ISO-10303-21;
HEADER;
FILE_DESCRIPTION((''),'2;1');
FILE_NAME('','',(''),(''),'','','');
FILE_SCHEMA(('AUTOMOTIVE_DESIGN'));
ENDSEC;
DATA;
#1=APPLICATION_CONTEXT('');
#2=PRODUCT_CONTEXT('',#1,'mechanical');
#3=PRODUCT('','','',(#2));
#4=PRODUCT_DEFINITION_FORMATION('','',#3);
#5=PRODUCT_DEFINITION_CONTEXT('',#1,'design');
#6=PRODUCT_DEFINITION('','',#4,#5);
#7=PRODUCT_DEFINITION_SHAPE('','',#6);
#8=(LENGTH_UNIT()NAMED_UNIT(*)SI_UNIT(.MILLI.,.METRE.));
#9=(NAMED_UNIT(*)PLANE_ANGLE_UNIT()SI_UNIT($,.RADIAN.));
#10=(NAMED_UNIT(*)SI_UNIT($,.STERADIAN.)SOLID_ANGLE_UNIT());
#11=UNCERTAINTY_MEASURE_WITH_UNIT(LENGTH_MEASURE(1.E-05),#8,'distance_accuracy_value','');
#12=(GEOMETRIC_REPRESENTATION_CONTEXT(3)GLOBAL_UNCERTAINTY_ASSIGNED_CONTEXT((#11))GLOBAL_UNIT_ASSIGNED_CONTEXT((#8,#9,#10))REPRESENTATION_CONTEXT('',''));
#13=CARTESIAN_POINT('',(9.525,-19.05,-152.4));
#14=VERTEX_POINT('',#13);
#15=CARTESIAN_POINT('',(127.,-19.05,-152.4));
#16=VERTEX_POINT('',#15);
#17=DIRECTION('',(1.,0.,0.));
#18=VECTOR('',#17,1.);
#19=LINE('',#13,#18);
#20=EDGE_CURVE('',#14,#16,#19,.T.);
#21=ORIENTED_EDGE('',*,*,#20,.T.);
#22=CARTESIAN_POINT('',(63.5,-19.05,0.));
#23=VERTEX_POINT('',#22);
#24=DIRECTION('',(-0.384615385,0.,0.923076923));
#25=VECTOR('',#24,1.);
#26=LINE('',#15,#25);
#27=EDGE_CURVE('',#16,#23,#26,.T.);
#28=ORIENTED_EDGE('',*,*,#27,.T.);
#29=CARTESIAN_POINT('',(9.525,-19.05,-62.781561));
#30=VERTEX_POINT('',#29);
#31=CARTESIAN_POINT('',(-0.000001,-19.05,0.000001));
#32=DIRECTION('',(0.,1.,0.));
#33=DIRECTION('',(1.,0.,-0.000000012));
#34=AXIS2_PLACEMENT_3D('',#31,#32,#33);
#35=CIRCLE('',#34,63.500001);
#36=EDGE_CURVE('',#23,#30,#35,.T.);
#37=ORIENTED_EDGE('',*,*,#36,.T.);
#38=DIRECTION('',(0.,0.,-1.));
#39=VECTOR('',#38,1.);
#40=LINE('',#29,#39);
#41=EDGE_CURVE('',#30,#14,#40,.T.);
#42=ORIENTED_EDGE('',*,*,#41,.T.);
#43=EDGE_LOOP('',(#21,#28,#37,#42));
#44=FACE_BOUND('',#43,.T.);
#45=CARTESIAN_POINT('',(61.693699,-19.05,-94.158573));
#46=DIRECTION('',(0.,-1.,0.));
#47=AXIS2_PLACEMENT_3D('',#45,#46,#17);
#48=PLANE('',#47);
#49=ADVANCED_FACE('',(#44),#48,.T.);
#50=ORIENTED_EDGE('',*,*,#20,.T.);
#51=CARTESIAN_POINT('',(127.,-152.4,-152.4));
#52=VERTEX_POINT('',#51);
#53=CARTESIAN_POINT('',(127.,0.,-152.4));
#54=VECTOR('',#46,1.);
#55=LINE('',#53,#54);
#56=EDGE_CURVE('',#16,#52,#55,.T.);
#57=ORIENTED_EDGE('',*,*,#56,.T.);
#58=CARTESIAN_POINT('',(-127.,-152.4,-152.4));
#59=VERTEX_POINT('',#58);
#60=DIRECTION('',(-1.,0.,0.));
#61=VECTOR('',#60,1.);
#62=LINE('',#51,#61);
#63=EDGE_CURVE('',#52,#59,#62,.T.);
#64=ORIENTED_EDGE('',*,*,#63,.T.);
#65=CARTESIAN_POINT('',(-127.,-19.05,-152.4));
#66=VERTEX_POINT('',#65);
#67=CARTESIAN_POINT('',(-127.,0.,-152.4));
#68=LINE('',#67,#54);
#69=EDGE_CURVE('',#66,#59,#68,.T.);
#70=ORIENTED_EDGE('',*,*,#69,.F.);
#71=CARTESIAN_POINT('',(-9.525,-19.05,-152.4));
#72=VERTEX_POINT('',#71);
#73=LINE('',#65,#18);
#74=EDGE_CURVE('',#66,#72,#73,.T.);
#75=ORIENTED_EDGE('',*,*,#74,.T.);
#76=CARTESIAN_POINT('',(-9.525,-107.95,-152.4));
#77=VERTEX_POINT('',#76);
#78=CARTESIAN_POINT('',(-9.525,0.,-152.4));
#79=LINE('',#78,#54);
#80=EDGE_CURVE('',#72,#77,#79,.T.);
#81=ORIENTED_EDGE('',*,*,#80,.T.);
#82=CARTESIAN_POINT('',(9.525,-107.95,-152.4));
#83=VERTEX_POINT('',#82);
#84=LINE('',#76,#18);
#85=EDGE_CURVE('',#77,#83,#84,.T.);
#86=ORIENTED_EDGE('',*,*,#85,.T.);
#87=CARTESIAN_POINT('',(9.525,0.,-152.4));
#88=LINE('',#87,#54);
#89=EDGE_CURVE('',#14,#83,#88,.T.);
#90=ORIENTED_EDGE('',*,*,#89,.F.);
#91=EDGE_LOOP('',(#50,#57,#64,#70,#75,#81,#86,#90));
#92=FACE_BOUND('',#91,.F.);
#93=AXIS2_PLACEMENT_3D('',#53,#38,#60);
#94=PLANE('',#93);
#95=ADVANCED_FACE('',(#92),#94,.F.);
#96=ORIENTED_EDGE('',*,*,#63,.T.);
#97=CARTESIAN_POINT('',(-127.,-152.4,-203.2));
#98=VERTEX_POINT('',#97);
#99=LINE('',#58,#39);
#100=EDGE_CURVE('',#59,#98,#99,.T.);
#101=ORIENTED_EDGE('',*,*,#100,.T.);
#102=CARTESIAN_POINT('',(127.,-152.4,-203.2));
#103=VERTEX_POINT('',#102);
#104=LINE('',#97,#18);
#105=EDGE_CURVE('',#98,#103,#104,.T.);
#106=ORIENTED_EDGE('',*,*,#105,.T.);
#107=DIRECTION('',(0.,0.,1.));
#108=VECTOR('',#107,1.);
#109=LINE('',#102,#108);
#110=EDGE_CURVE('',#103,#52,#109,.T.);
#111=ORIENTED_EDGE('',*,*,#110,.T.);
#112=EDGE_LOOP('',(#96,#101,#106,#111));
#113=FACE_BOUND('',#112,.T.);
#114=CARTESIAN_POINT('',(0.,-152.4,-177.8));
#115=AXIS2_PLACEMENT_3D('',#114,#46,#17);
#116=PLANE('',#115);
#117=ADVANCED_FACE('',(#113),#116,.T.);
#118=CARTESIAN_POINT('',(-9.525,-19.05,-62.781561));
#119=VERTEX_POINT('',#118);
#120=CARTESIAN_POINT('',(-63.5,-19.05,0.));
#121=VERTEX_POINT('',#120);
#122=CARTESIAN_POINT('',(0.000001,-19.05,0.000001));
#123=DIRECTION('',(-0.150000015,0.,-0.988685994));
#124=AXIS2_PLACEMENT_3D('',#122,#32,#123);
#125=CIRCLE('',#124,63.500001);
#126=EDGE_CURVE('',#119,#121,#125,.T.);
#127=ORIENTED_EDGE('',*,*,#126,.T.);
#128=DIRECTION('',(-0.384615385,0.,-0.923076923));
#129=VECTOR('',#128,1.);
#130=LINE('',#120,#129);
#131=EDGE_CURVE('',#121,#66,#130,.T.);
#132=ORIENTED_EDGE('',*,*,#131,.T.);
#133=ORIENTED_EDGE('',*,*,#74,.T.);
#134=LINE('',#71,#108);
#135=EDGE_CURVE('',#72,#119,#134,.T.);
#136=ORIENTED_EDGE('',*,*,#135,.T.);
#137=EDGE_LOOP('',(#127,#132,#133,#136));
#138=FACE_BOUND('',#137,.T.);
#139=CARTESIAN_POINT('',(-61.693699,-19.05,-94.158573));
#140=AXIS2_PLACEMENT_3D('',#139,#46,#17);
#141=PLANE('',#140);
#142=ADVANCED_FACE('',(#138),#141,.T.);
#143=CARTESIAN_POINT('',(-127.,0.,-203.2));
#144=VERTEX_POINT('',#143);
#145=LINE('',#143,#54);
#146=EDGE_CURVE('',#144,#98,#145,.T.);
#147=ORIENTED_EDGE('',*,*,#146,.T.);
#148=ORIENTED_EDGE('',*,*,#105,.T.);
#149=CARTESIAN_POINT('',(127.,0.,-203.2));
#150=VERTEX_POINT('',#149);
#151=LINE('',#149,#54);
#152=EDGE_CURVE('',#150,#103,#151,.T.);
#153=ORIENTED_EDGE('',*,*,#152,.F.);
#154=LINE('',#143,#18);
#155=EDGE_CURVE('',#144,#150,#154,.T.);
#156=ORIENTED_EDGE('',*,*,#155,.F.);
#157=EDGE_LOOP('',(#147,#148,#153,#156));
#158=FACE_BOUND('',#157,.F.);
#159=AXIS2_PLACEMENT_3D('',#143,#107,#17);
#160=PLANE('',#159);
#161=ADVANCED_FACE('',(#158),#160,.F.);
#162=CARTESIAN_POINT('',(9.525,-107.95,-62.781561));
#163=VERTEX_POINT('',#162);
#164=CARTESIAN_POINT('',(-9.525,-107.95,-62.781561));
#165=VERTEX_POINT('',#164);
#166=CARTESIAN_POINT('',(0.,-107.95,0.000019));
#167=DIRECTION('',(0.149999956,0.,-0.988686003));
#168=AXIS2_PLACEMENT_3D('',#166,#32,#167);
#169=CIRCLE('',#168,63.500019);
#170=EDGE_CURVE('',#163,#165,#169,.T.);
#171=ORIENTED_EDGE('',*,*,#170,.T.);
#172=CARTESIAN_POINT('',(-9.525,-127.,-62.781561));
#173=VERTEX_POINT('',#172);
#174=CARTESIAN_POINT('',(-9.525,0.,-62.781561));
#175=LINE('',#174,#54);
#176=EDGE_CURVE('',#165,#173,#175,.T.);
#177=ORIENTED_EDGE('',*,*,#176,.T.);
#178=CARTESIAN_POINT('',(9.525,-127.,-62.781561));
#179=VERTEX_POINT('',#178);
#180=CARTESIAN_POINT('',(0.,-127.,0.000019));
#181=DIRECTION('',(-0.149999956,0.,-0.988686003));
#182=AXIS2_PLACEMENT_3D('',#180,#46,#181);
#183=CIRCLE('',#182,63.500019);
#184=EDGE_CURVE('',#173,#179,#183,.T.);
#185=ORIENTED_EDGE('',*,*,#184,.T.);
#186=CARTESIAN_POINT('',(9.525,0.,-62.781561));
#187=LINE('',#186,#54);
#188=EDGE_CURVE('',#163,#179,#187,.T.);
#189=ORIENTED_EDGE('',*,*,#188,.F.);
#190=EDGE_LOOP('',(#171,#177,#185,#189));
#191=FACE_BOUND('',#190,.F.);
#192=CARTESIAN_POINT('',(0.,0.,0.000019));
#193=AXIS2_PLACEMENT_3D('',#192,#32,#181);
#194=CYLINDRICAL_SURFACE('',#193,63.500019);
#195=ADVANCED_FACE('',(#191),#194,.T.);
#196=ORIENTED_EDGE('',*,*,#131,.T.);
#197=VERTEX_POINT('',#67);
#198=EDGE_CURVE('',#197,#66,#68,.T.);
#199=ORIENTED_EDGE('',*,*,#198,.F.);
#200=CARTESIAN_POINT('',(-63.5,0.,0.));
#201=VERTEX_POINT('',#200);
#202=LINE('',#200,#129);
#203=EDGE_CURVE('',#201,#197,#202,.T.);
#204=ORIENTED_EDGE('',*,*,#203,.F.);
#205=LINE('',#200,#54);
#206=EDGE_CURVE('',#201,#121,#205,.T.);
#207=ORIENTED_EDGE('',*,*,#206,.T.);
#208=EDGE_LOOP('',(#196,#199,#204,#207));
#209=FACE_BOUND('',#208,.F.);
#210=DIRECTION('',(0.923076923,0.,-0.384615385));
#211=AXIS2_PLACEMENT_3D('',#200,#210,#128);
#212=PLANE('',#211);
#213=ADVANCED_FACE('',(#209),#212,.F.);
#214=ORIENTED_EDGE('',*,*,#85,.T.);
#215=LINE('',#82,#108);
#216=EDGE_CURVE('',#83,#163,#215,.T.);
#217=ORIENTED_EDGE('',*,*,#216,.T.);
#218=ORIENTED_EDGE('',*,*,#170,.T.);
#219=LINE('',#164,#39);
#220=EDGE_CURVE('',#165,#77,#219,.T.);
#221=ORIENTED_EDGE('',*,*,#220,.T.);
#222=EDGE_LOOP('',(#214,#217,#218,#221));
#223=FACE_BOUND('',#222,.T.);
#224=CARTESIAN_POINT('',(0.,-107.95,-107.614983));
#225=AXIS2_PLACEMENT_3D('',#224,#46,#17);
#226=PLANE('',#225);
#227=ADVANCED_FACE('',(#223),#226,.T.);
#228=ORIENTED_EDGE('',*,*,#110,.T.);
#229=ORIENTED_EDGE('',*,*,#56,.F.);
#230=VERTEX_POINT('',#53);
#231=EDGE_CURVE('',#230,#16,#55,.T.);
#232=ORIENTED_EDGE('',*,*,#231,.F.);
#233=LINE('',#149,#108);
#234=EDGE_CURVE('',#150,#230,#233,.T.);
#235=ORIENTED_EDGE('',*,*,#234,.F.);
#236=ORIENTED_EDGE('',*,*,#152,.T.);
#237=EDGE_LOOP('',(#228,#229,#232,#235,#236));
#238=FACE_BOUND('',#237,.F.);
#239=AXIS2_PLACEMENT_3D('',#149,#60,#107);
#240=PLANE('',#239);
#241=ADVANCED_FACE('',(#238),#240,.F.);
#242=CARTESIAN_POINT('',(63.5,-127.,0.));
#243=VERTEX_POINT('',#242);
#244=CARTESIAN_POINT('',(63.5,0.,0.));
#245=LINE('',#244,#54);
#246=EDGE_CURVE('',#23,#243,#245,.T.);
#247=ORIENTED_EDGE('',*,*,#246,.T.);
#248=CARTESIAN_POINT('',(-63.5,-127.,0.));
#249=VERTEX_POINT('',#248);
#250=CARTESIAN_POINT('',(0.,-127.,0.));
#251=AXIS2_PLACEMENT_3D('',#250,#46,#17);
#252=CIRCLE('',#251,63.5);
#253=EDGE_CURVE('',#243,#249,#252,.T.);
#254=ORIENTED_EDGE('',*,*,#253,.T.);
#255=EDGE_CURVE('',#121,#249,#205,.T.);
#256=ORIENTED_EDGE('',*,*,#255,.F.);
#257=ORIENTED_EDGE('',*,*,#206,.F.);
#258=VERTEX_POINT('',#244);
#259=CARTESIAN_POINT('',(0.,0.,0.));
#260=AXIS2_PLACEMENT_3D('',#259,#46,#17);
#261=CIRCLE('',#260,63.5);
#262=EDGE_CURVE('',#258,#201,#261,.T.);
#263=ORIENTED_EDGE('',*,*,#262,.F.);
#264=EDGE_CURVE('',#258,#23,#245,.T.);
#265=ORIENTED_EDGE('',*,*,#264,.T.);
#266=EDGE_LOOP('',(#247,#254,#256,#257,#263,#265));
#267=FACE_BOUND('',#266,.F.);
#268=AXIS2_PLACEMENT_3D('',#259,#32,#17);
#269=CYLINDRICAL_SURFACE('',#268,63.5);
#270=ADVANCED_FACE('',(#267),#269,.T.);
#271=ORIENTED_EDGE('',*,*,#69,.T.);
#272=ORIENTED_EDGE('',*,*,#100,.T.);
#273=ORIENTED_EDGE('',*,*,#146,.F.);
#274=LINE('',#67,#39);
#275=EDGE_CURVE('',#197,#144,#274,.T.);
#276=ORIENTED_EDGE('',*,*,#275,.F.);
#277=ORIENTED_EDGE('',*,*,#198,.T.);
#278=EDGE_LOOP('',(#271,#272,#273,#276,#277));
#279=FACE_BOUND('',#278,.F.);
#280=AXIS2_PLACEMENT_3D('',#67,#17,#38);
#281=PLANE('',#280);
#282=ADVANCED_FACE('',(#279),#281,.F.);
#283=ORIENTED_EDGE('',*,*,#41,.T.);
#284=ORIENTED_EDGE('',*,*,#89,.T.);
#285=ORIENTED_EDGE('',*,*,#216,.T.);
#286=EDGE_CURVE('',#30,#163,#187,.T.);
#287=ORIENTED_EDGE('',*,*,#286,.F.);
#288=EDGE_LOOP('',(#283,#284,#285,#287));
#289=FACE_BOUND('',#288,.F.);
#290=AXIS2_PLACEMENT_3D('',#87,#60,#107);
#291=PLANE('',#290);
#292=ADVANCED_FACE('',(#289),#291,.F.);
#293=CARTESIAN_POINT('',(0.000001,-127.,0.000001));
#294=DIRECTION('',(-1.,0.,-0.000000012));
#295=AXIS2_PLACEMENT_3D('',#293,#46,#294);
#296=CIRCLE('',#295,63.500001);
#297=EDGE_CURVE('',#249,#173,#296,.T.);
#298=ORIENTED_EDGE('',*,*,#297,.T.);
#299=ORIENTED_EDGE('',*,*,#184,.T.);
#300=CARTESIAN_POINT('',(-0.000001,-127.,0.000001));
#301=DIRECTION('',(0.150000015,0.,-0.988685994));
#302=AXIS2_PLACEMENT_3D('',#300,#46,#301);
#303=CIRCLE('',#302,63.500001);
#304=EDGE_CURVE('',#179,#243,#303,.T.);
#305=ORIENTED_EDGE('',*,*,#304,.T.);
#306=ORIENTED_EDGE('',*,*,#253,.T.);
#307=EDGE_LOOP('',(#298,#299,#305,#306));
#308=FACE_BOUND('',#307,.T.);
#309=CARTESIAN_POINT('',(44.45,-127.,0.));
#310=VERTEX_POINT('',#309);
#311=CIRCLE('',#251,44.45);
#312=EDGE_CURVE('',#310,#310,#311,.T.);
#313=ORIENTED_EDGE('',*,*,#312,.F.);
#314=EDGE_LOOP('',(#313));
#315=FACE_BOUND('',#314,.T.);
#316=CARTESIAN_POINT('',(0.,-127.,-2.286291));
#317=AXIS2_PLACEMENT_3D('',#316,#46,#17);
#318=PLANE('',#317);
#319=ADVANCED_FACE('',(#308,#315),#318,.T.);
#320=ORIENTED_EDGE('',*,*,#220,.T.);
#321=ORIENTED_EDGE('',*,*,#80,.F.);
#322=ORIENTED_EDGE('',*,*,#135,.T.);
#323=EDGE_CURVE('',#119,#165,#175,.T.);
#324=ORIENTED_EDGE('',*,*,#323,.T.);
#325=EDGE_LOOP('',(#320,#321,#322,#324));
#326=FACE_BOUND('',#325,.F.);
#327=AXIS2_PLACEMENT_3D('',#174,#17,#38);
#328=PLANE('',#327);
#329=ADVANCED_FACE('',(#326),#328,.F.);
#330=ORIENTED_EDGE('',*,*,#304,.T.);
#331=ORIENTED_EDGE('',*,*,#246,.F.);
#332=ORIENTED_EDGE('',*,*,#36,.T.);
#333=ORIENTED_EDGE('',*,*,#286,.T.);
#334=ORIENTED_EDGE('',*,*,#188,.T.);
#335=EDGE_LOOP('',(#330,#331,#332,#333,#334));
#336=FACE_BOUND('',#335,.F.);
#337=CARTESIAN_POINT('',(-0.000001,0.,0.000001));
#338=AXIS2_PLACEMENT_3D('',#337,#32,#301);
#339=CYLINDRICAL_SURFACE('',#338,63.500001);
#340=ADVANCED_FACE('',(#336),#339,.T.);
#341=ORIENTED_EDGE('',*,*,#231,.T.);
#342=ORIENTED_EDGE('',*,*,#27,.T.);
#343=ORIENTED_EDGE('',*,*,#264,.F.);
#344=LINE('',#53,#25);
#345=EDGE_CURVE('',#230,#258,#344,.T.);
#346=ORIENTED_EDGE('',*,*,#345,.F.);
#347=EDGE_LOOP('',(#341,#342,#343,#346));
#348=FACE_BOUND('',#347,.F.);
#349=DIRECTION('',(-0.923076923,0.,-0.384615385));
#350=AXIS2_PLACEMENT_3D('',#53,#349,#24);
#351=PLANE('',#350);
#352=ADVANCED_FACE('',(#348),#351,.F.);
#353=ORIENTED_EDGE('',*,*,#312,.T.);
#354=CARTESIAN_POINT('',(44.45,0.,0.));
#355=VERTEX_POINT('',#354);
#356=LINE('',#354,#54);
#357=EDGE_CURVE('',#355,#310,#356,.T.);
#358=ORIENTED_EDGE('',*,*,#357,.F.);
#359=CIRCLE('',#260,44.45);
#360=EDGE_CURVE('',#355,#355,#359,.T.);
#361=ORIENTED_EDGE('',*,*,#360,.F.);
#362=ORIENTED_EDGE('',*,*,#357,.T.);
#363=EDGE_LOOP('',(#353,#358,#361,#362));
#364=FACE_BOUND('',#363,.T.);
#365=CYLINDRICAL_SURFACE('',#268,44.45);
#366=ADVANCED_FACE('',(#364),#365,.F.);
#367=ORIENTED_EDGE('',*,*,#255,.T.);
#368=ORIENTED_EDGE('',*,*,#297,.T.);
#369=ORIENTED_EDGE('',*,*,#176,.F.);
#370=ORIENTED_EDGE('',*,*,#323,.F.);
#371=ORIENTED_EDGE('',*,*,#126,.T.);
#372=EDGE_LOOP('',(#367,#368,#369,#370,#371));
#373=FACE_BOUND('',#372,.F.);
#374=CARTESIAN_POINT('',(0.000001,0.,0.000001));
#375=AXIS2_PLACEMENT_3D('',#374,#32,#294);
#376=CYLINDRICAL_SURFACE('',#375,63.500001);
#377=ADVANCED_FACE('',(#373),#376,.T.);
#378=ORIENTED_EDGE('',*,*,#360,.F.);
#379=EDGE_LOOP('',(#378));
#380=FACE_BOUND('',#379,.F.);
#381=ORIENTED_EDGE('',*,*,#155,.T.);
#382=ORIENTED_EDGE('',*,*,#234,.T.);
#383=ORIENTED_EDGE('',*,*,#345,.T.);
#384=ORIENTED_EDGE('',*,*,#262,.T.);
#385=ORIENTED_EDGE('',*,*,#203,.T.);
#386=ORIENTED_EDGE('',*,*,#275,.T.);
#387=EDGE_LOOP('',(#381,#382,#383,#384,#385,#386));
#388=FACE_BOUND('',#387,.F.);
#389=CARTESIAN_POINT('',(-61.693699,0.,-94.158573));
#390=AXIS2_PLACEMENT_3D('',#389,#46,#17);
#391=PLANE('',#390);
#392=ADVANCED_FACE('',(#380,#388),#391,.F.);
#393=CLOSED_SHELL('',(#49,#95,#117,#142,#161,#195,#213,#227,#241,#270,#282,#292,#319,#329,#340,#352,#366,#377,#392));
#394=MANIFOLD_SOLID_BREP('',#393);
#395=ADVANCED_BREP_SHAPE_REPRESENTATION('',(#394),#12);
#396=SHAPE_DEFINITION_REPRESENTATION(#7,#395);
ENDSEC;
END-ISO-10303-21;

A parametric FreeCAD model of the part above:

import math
import FreeCAD as App
import Part
import Sketcher

V = App.Vector
Q = App.Units.Quantity


def add_polygon(sketch, points):
    """Adds a closed chain of lines whose ends are joined by coincident constraints."""
    first, n = sketch.GeometryCount, len(points)
    for a, b in zip(points, points[1:] + points[:1]):
        sketch.addGeometry(Part.LineSegment(App.Vector(*a, 0), App.Vector(*b, 0)), False)
    for i in range(n):
        sketch.addConstraint(Sketcher.Constraint("Coincident", first + i, 2, first + (i + 1) % n, 1))

doc = App.newDocument("Part")
body = doc.addObject("PartDesign::Body", "Body")

# Sketch on XZ plane
sketch1 = doc.addObject("Sketcher::SketchObject", "Sketch")
body.addObject(sketch1)
sketch1.AttachmentSupport = (doc.XZ_Plane, [""])
sketch1.MapMode = "FlatFace"
add_polygon(sketch1, [(127, -203.2), (127, -152.4), (-127, -152.4), (-127, -203.2)])  # lines 0-3
sketch1.addConstraint(Sketcher.Constraint("Vertical", 0))
sketch1.addConstraint(Sketcher.Constraint("Horizontal", 1))
sketch1.addConstraint(Sketcher.Constraint("Vertical", 2))
sketch1.addConstraint(Sketcher.Constraint("Horizontal", 3))
sketch1.addConstraint(Sketcher.Constraint("DistanceX", 1, 2, 1, 1, Q("10 in")))
sketch1.addConstraint(Sketcher.Constraint("DistanceY", 0, 1, 0, 2, Q("2 in")))
sketch1.addConstraint(Sketcher.Constraint("DistanceX", -1, 1, 0, 2, Q("5 in")))
sketch1.addConstraint(Sketcher.Constraint("DistanceY", 0, 2, -1, 1, Q("6 in")))
pad1 = doc.addObject("PartDesign::Pad", "Pad")
body.addObject(pad1)
pad1.Profile = sketch1
pad1.Length = Q("6 in")

# Sketch on XZ plane
sketch2 = doc.addObject("Sketcher::SketchObject", "Sketch001")
body.addObject(sketch2)
sketch2.AttachmentSupport = (doc.XZ_Plane, [""])
sketch2.MapMode = "FlatFace"
sketch2.addGeometry(Part.LineSegment(V(9.525, -152.4, 0), V(9.525, -62.781561, 0)), False)
sketch2.addGeometry(Part.ArcOfCircle(Part.Circle(V(0, 0.000019, 0), V(0, 0, 1), 63.500019), math.radians(-98.626924), math.radians(-81.373076)), False)
sketch2.addGeometry(Part.LineSegment(V(-9.525, -62.781561, 0), V(-9.525, -152.4, 0)), False)
sketch2.addGeometry(Part.LineSegment(V(-9.525, -152.4, 0), V(9.525, -152.4, 0)), False)
sketch2.addConstraint(Sketcher.Constraint("Coincident", 0, 2, 1, 2))
sketch2.addConstraint(Sketcher.Constraint("Coincident", 1, 1, 2, 1))
sketch2.addConstraint(Sketcher.Constraint("Coincident", 2, 2, 3, 1))
sketch2.addConstraint(Sketcher.Constraint("Coincident", 3, 2, 0, 1))
sketch2.addConstraint(Sketcher.Constraint("Vertical", 0))
sketch2.addConstraint(Sketcher.Constraint("Vertical", 2))
sketch2.addConstraint(Sketcher.Constraint("Horizontal", 3))
sketch2.addConstraint(Sketcher.Constraint("Symmetric", 0, 2, 1, 1, -2))
sketch2.addConstraint(Sketcher.Constraint("DistanceY", 2, 2, -1, 1, Q("6 in")))
sketch2.addConstraint(Sketcher.Constraint("DistanceX", 3, 1, 3, 2, Q("0.75 in")))
sketch2.addConstraint(Sketcher.Constraint("Radius", 1, Q("63.500019 mm")))
sketch2.addConstraint(Sketcher.Constraint("DistanceY", 0, 1, 0, 2, Q("89.618439 mm")))
pad2 = doc.addObject("PartDesign::Pad", "Pad001")
body.addObject(pad2)
pad2.Profile = sketch2
pad2.Length = Q("4.25 in")

# Sketch on XZ plane
sketch3 = doc.addObject("Sketcher::SketchObject", "Sketch002")
body.addObject(sketch3)
sketch3.AttachmentSupport = (doc.XZ_Plane, [""])
sketch3.MapMode = "FlatFace"
sketch3.addGeometry(Part.ArcOfCircle(Part.Circle(V(-0.000001, 0.000001, 0), V(0, 0, 1), 63.500001), math.radians(-81.373073), math.radians(-0.000001)), False)
sketch3.addGeometry(Part.ArcOfCircle(Part.Circle(V(0, 0, 0), V(0, 0, 1), 63.5), math.radians(0), math.radians(180)), False)
sketch3.addGeometry(Part.ArcOfCircle(Part.Circle(V(0.000001, 0.000001, 0), V(0, 0, 1), 63.500001), math.radians(-179.999999), math.radians(-98.626927)), False)
sketch3.addGeometry(Part.ArcOfCircle(Part.Circle(V(0, 0.000019, 0), V(0, 0, 1), 63.500019), math.radians(-98.626924), math.radians(-81.373076)), False)
sketch3.addGeometry(Part.Circle(V(0, 0, 0), V(0, 0, 1), 44.45), False)
sketch3.addConstraint(Sketcher.Constraint("Tangent", 0, 2, 1, 1))
sketch3.addConstraint(Sketcher.Constraint("Tangent", 1, 2, 2, 1))
sketch3.addConstraint(Sketcher.Constraint("Tangent", 2, 2, 3, 1))
sketch3.addConstraint(Sketcher.Constraint("Tangent", 3, 2, 0, 1))
sketch3.addConstraint(Sketcher.Constraint("Coincident", 0, 3, -1, 1))
sketch3.addConstraint(Sketcher.Constraint("Coincident", 4, 3, -1, 1))
sketch3.addConstraint(Sketcher.Constraint("Equal", 0, 1))
sketch3.addConstraint(Sketcher.Constraint("PointOnObject", 0, 2, -1))
sketch3.addConstraint(Sketcher.Constraint("PointOnObject", 1, 2, -1))
sketch3.addConstraint(Sketcher.Constraint("Horizontal", 2, 2, 3, 2))
sketch3.addConstraint(Sketcher.Constraint("Diameter", 4, Q("3.5 in")))
sketch3.addConstraint(Sketcher.Constraint("Radius", 0, Q("2.5 in")))
sketch3.addConstraint(Sketcher.Constraint("DistanceX", 2, 2, 3, 2, Q("0.75 in")))
pad3 = doc.addObject("PartDesign::Pad", "Pad002")
body.addObject(pad3)
pad3.Profile = sketch3
pad3.Length = Q("5 in")

# Sketch on XZ plane
sketch4 = doc.addObject("Sketcher::SketchObject", "Sketch003")
body.addObject(sketch4)
sketch4.AttachmentSupport = (doc.XZ_Plane, [""])
sketch4.MapMode = "FlatFace"
sketch4.addGeometry(Part.ArcOfCircle(Part.Circle(V(0.000001, 0.000001, 0), V(0, 0, 1), 63.500001), math.radians(-179.999999), math.radians(-98.626927)), False)
sketch4.addGeometry(Part.LineSegment(V(-63.5, 0, 0), V(-127, -152.4, 0)), False)
sketch4.addGeometry(Part.LineSegment(V(-127, -152.4, 0), V(-9.525, -152.4, 0)), False)
sketch4.addGeometry(Part.LineSegment(V(-9.525, -152.4, 0), V(-9.525, -62.781561, 0)), False)
sketch4.addGeometry(Part.LineSegment(V(127, -152.4, 0), V(63.5, 0, 0)), False)
sketch4.addGeometry(Part.ArcOfCircle(Part.Circle(V(-0.000001, 0.000001, 0), V(0, 0, 1), 63.500001), math.radians(-81.373073), math.radians(-0.000001)), False)
sketch4.addGeometry(Part.LineSegment(V(9.525, -62.781561, 0), V(9.525, -152.4, 0)), False)
sketch4.addGeometry(Part.LineSegment(V(9.525, -152.4, 0), V(127, -152.4, 0)), False)
sketch4.addConstraint(Sketcher.Constraint("Coincident", 0, 1, 1, 1))
sketch4.addConstraint(Sketcher.Constraint("Coincident", 1, 2, 2, 1))
sketch4.addConstraint(Sketcher.Constraint("Coincident", 2, 2, 3, 1))
sketch4.addConstraint(Sketcher.Constraint("Coincident", 3, 2, 0, 2))
sketch4.addConstraint(Sketcher.Constraint("Coincident", 4, 2, 5, 2))
sketch4.addConstraint(Sketcher.Constraint("Coincident", 5, 1, 6, 1))
sketch4.addConstraint(Sketcher.Constraint("Coincident", 6, 2, 7, 1))
sketch4.addConstraint(Sketcher.Constraint("Coincident", 7, 2, 4, 1))
sketch4.addConstraint(Sketcher.Constraint("Horizontal", 2))
sketch4.addConstraint(Sketcher.Constraint("Vertical", 3))
sketch4.addConstraint(Sketcher.Constraint("Vertical", 6))
sketch4.addConstraint(Sketcher.Constraint("Horizontal", 7))
sketch4.addConstraint(Sketcher.Constraint("Coincident", 0, 3, -1, 1))
sketch4.addConstraint(Sketcher.Constraint("Coincident", 5, 3, -1, 1))
sketch4.addConstraint(Sketcher.Constraint("Equal", 0, 5))
sketch4.addConstraint(Sketcher.Constraint("Symmetric", 2, 2, 6, 2, -2))
sketch4.addConstraint(Sketcher.Constraint("PointOnObject", 0, 1, -1))
sketch4.addConstraint(Sketcher.Constraint("PointOnObject", 4, 2, -1))
sketch4.addConstraint(Sketcher.Constraint("Equal", 2, 7))
sketch4.addConstraint(Sketcher.Constraint("Radius", 0, Q("2.5 in")))
sketch4.addConstraint(Sketcher.Constraint("DistanceX", 1, 2, -1, 1, Q("5 in")))
sketch4.addConstraint(Sketcher.Constraint("DistanceY", 1, 2, -1, 1, Q("6 in")))
sketch4.addConstraint(Sketcher.Constraint("DistanceX", 2, 1, 2, 2, Q("4.625 in")))
pad4 = doc.addObject("PartDesign::Pad", "Pad003")
body.addObject(pad4)
pad4.Profile = sketch4
pad4.Length = Q("0.75 in")

doc.recompute()
